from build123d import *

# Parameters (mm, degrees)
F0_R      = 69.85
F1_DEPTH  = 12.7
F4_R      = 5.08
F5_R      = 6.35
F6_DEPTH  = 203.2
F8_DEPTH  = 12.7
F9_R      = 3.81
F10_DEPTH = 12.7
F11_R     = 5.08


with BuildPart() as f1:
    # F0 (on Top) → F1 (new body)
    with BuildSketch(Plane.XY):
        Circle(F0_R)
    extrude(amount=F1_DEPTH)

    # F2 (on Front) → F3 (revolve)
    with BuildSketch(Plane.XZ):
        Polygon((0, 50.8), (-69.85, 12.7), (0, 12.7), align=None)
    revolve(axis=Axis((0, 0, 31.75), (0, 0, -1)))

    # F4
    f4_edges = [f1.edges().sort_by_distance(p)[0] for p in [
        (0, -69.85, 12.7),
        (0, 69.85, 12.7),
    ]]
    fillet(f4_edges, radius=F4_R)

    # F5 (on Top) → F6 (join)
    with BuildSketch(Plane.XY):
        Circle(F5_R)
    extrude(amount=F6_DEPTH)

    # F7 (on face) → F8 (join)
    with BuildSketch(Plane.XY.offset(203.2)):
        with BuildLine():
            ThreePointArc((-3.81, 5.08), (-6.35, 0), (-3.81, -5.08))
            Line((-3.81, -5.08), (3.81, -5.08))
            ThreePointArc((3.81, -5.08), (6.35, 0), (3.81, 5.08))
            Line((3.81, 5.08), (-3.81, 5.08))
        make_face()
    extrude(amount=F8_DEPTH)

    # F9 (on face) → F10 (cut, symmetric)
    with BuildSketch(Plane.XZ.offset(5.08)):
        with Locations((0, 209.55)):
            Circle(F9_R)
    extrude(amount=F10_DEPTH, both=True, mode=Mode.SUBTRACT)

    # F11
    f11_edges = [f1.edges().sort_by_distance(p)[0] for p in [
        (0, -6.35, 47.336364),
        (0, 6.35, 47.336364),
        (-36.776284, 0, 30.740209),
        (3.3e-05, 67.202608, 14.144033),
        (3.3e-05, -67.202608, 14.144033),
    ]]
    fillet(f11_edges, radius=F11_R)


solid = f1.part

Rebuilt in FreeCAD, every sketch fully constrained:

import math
import FreeCAD as App
import Part
import Sketcher

V = App.Vector
Q = App.Units.Quantity


def edges_at(feature, points):
    """Names of the edges that pass closest to the given points."""
    edges = feature.Shape.Edges
    near = lambda p: min(range(len(edges)), key=lambda i: edges[i].distToShape(Part.Vertex(*p))[0])
    return sorted({f"Edge{near(p) + 1}" for p in points})


def add_polygon(sketch, points):
    """Adds a closed chain of lines whose ends are joined by coincident constraints."""
    first, n = sketch.GeometryCount, len(points)
    for a, b in zip(points, points[1:] + points[:1]):
        sketch.addGeometry(Part.LineSegment(App.Vector(*a, 0), App.Vector(*b, 0)), False)
    for i in range(n):
        sketch.addConstraint(Sketcher.Constraint("Coincident", first + i, 2, first + (i + 1) % n, 1))

doc = App.newDocument("Part")
body = doc.addObject("PartDesign::Body", "Body")

# Sketch on XY plane
sketch1 = body.newObject("Sketcher::SketchObject", "Sketch")
sketch1.AttachmentSupport = (doc.getObject("XY_Plane"), [""])
sketch1.MapMode = "FlatFace"
sketch1.addGeometry(Part.Circle(V(0, 0, 0), V(0, 0, 1), 70), False)
sketch1.addConstraint([
    Sketcher.Constraint("Coincident", 0, 3, -1, 1),
    Sketcher.Constraint("Diameter", 0, Q("5.5 in")),
])
pad1 = body.newObject("PartDesign::Pad", "Pad")
pad1.Profile = sketch1
pad1.Length = Q("0.5 in")

# Sketch on XZ plane
sketch2 = body.newObject("Sketcher::SketchObject", "Sketch001")
sketch2.AttachmentSupport = (doc.getObject("XZ_Plane"), [""])
sketch2.MapMode = "FlatFace"
add_polygon(sketch2, [(0, 51), (-70, 13), (0, 13)])  # lines 0-2
sketch2.addConstraint([
    Sketcher.Constraint("Horizontal", 1),
    Sketcher.Constraint("Vertical", 2),
    Sketcher.Constraint("PointOnObject", 1, 2, -2),
    Sketcher.Constraint("DistanceY", 2, 1, 2, 2, Q("1.5 in")),
    Sketcher.Constraint("DistanceY", -1, 1, 2, 2, Q("2 in")),
    Sketcher.Constraint("DistanceX", 1, 1, 1, 2, Q("2.75 in")),
])
revolution = body.newObject("PartDesign::Revolution", "Revolution")
revolution.Profile = sketch2
revolution.ReferenceAxis = (sketch2, ["V_Axis"])
revolution.Angle = 360
doc.recompute()

fillet = body.newObject("PartDesign::Fillet", "Fillet")
fillet.Base = (revolution, edges_at(revolution, [(0, -69.85, 12.7), (0, 69.85, 12.7)]))
fillet.Radius = Q("0.2 in")

# Sketch on XY plane
sketch3 = body.newObject("Sketcher::SketchObject", "Sketch002")
sketch3.AttachmentSupport = (doc.getObject("XY_Plane"), [""])
sketch3.MapMode = "FlatFace"
sketch3.addGeometry(Part.Circle(V(0, 0, 0), V(0, 0, 1), 6), False)
sketch3.addConstraint([
    Sketcher.Constraint("Coincident", 0, 3, -1, 1),
    Sketcher.Constraint("Diameter", 0, Q("0.5 in")),
])
pad2 = body.newObject("PartDesign::Pad", "Pad001")
pad2.Profile = sketch3
pad2.Length = Q("8 in")

# Sketch on XY plane
sketch4 = body.newObject("Sketcher::SketchObject", "Sketch003")
sketch4.AttachmentSupport = (doc.getObject("XY_Plane"), [""])
sketch4.MapMode = "FlatFace"
sketch4.AttachmentOffset = App.Placement(V(0, 0, 8 * 25.4), App.Rotation())
sketch4.addGeometry([
    Part.ArcOfCircle(Part.Circle(V(0, 0, 0), V(0, 0, 1), 6), math.radians(127), math.radians(233)),
    Part.LineSegment(V(-4, -5, 0), V(4, -5, 0)),
    Part.ArcOfCircle(Part.Circle(V(0, 0, 0), V(0, 0, 1), 6), math.radians(-53), math.radians(53)),
    Part.LineSegment(V(4, 5, 0), V(-4, 5, 0)),
], False)
sketch4.addConstraint([
    Sketcher.Constraint("Coincident", 0, 2, 1, 1),
    Sketcher.Constraint("Coincident", 1, 2, 2, 1),
    Sketcher.Constraint("Coincident", 2, 2, 3, 1),
    Sketcher.Constraint("Coincident", 3, 2, 0, 1),
    Sketcher.Constraint("Horizontal", 1),
    Sketcher.Constraint("Horizontal", 3),
    Sketcher.Constraint("Coincident", 0, 3, -1, 1),
    Sketcher.Constraint("Coincident", 2, 3, -1, 1),
    Sketcher.Constraint("Equal", 0, 2),
    Sketcher.Constraint("Vertical", 1, 2, 2, 2),
    Sketcher.Constraint("Radius", 0, Q("0.25 in")),
    Sketcher.Constraint("DistanceX", 1, 1, 1, 2, Q("0.3 in")),
])
pad3 = body.newObject("PartDesign::Pad", "Pad002")
pad3.Profile = sketch4
pad3.Length = Q("0.5 in")

# Sketch on XZ plane
sketch5 = body.newObject("Sketcher::SketchObject", "Sketch004")
sketch5.AttachmentSupport = (doc.getObject("XZ_Plane"), [""])
sketch5.MapMode = "FlatFace"
sketch5.AttachmentOffset = App.Placement(V(0, 0, 0.2 * 25.4), App.Rotation())
sketch5.addGeometry(Part.Circle(V(0, 209.6, 0), V(0, 0, 1), 3.8), False)
sketch5.addConstraint([
    Sketcher.Constraint("PointOnObject", 0, 3, -2),
    Sketcher.Constraint("Diameter", 0, Q("0.3 in")),
    Sketcher.Constraint("DistanceY", -1, 1, 0, 3, Q("8.25 in")),
])
pocket1 = body.newObject("PartDesign::Pocket", "Pocket")
pocket1.Profile = sketch5
pocket1.Length = Q("1 in")
pocket1.Midplane = True
doc.recompute()

fillet2 = body.newObject("PartDesign::Fillet", "Fillet001")
fillet2.Base = (pocket1, edges_at(pocket1, [
    (0, -6.35, 47.336),
    (0, 6.35, 47.336),
    (-36.776, 0, 30.74),
    (0, 67.203, 14.144),
    (0, -67.203, 14.144),
]))
fillet2.Radius = Q("0.2 in")

doc.recompute()
